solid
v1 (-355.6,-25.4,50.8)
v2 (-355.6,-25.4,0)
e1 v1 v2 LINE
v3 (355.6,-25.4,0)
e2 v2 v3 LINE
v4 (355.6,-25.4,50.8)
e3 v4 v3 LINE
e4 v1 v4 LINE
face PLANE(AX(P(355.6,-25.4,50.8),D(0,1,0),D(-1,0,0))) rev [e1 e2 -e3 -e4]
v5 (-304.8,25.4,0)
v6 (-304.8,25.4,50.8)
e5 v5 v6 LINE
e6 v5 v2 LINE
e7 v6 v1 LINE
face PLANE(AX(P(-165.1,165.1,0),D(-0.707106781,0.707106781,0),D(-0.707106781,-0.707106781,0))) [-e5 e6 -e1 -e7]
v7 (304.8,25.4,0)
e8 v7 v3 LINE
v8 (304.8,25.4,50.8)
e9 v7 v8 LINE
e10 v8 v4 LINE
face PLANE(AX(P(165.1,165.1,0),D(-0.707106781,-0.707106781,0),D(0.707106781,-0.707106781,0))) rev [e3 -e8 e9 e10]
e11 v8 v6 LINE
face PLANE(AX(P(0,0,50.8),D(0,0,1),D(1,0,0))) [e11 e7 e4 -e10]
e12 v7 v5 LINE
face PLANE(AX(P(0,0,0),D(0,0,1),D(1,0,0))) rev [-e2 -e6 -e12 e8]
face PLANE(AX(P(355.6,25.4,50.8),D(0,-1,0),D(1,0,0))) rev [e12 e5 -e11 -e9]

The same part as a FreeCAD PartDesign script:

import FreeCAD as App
import Part
import Sketcher

V = App.Vector
Q = App.Units.Quantity

doc = App.newDocument("Part")
body = doc.addObject("PartDesign::Body", "Body")

# Sketch on XY plane
sketch1 = doc.addObject("Sketcher::SketchObject", "Sketch")
body.addObject(sketch1)
sketch1.AttachmentSupport = (doc.XY_Plane, [""])
sketch1.MapMode = "FlatFace"
sketch1.addGeometry([
    Part.LineSegment(V(-356, 25, 0), V(-356, -25, 0)),
    Part.LineSegment(V(-356, -25, 0), V(356, -25, 0)),
    Part.LineSegment(V(356, -25, 0), V(356, 25, 0)),
    Part.LineSegment(V(356, 25, 0), V(-356, 25, 0)),
], False)
sketch1.addConstraint([
    Sketcher.Constraint("Coincident", 0, 2, 1, 1),
    Sketcher.Constraint("Coincident", 1, 2, 2, 1),
    Sketcher.Constraint("Coincident", 2, 2, 3, 1),
    Sketcher.Constraint("Coincident", 3, 2, 0, 1),
    Sketcher.Constraint("Vertical", 0),
    Sketcher.Constraint("Horizontal", 1),
    Sketcher.Constraint("Vertical", 2),
    Sketcher.Constraint("Horizontal", 3),
    Sketcher.Constraint("Symmetric", 0, 2, 2, 2, -1, 1),
    Sketcher.Constraint("DistanceX", 1, 1, 1, 2, Q("711.2 mm")),
    Sketcher.Constraint("DistanceY", 0, 2, 0, 1, Q("50.8 mm")),
])
pad1 = doc.addObject("PartDesign::Pad", "Pad")
body.addObject(pad1)
pad1.Profile = sketch1
pad1.Length = 50.8

# Sketch on XY plane
sketch2 = doc.addObject("Sketcher::SketchObject", "Sketch001")
body.addObject(sketch2)
sketch2.AttachmentSupport = (doc.XY_Plane, [""])
sketch2.MapMode = "FlatFace"
sketch2.AttachmentOffset = App.Placement(V(0, 0, 50.8), App.Rotation())
sketch2.addGeometry([
    Part.LineSegment(V(356, 25, 0), V(336, 25, 0)),  # 0
    Part.LineSegment(V(336, 25, 0), V(356, -25, 0)),  # 1
    Part.LineSegment(V(356, -25, 0), V(356, 25, 0)),  # 2
    Part.LineSegment(V(-336, 25, 0), V(-356, 25, 0)),  # 3
    Part.LineSegment(V(-356, 25, 0), V(-356, -25, 0)),  # 4
    Part.LineSegment(V(-356, -25, 0), V(-336, 25, 0)),  # 5
], False)
sketch2.addConstraint([
    Sketcher.Constraint("Coincident", 0, 2, 1, 1),
    Sketcher.Constraint("Coincident", 1, 2, 2, 1),
    Sketcher.Constraint("Coincident", 2, 2, 0, 1),
    Sketcher.Constraint("Coincident", 3, 2, 4, 1),
    Sketcher.Constraint("Coincident", 4, 2, 5, 1),
    Sketcher.Constraint("Coincident", 5, 2, 3, 1),
    Sketcher.Constraint("Horizontal", 0),
    Sketcher.Constraint("Vertical", 2),
    Sketcher.Constraint("Horizontal", 3),
    Sketcher.Constraint("Vertical", 4),
    Sketcher.Constraint("Symmetric", 1, 2, 3, 2, -1, 1),
    Sketcher.Constraint("Symmetric", 0, 2, 5, 2, -2),
    Sketcher.Constraint("Horizontal", 1, 2, 4, 2),
    Sketcher.Constraint("DistanceX", 0, 2, 0, 1, Q("20 mm")),
    Sketcher.Constraint("DistanceY", 2, 1, 2, 2, Q("50.8 mm")),
    Sketcher.Constraint("DistanceX", -1, 1, 0, 2, Q("335.6 mm")),
])
pocket1 = doc.addObject("PartDesign::Pocket", "Pocket")
body.addObject(pocket1)
pocket1.Profile = sketch2
pocket1.Type = "ThroughAll"

# Sketch on XY plane
sketch3 = doc.addObject("Sketcher::SketchObject", "Sketch002")
body.addObject(sketch3)
sketch3.AttachmentSupport = (doc.XY_Plane, [""])
sketch3.MapMode = "FlatFace"
sketch3.AttachmentOffset = App.Placement(V(0, 0, 50.8), App.Rotation())
sketch3.addGeometry([
    Part.LineSegment(V(-336, 25, 0), V(-356, -25, 0)),  # 0
    Part.LineSegment(V(-356, -25, 0), V(-305, 25, 0)),  # 1
    Part.LineSegment(V(-305, 25, 0), V(-336, 25, 0)),  # 2
    Part.LineSegment(V(336, 25, 0), V(305, 25, 0)),  # 3
    Part.LineSegment(V(305, 25, 0), V(356, -25, 0)),  # 4
    Part.LineSegment(V(356, -25, 0), V(336, 25, 0)),  # 5
], False)
sketch3.addConstraint([
    Sketcher.Constraint("Coincident", 0, 2, 1, 1),
    Sketcher.Constraint("Coincident", 1, 2, 2, 1),
    Sketcher.Constraint("Coincident", 2, 2, 0, 1),
    Sketcher.Constraint("Coincident", 3, 2, 4, 1),
    Sketcher.Constraint("Coincident", 4, 2, 5, 1),
    Sketcher.Constraint("Coincident", 5, 2, 3, 1),
    Sketcher.Constraint("Horizontal", 2),
    Sketcher.Constraint("Horizontal", 3),
    Sketcher.Constraint("Symmetric", 1, 2, 3, 2, -2),
    Sketcher.Constraint("Symmetric", 0, 2, 4, 2, -2),
    Sketcher.Constraint("Perpendicular", 1, 4),
    Sketcher.Constraint("Equal", 2, 3),
    Sketcher.Constraint("DistanceX", 2, 2, 2, 1, Q("30.8 mm")),
    Sketcher.Constraint("DistanceX", 0, 2, 2, 2, Q("20 mm")),
    Sketcher.Constraint("DistanceX", 0, 2, -1, 1, Q("355.6 mm")),
    Sketcher.Constraint("DistanceY", 0, 2, -1, 1, Q("25.4 mm")),
])
pocket2 = doc.addObject("PartDesign::Pocket", "Pocket001")
body.addObject(pocket2)
pocket2.Profile = sketch3
pocket2.Type = "ThroughAll"

doc.recompute()
